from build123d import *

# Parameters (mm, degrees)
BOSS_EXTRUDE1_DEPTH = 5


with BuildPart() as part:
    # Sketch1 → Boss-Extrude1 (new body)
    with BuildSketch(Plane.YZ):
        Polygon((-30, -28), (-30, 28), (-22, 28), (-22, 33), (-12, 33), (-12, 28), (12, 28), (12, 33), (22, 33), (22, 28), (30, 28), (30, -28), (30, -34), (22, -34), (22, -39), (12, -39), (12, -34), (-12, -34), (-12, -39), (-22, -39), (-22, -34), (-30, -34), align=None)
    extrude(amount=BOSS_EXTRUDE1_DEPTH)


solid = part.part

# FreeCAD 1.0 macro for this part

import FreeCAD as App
import Part
import Sketcher

V = App.Vector
Q = App.Units.Quantity


def add_polygon(sketch, points):
    """Adds a closed chain of lines whose ends are joined by coincident constraints."""
    first, n = sketch.GeometryCount, len(points)
    for a, b in zip(points, points[1:] + points[:1]):
        sketch.addGeometry(Part.LineSegment(App.Vector(*a, 0), App.Vector(*b, 0)), False)
    for i in range(n):
        sketch.addConstraint(Sketcher.Constraint("Coincident", first + i, 2, first + (i + 1) % n, 1))

doc = App.newDocument("Part")
params = doc.addObject("Spreadsheet::Sheet", "Params")
for row, (alias, value) in enumerate([
    ("sketch1_width", "8 mm"),
    ("sketch1_width2", "10 mm"),
    ("sketch1_width3", "24 mm"),
    ("sketch1_height", "62 mm"),
    ("sketch1_height2", "5 mm"),
    ("pad1_length", "5 mm"),
], start=1):
    params.set(f"A{row}", alias)
    params.set(f"B{row}", "=" + value)
    params.setAlias(f"B{row}", alias)

body = doc.addObject("PartDesign::Body", "Body")

# Sketch on YZ plane
sketch1 = doc.addObject("Sketcher::SketchObject", "Sketch")
body.addObject(sketch1)
sketch1.AttachmentSupport = (doc.YZ_Plane, [""])
sketch1.MapMode = "FlatFace"
add_polygon(sketch1, [(-30, 28), (-30, -34), (-22, -34), (-22, -39), (-12, -39), (-12, -34), (12, -34), (12, -39), (22, -39), (22, -34), (30, -34), (30, 28), (22, 28), (22, 33), (12, 33), (12, 28), (-12, 28), (-12, 33), (-22, 33), (-22, 28)])  # lines 0-19
sketch1.addConstraint([
    Sketcher.Constraint("Vertical", 0),
    Sketcher.Constraint("Horizontal", 1),
    Sketcher.Constraint("Vertical", 2),
    Sketcher.Constraint("Horizontal", 3),
    Sketcher.Constraint("Vertical", 4),
    Sketcher.Constraint("Horizontal", 5),
    Sketcher.Constraint("Vertical", 6),
    Sketcher.Constraint("Horizontal", 7),
    Sketcher.Constraint("Vertical", 8),
    Sketcher.Constraint("Horizontal", 9),
    Sketcher.Constraint("Vertical", 10),
    Sketcher.Constraint("Horizontal", 11),
    Sketcher.Constraint("Vertical", 12),
    Sketcher.Constraint("Horizontal", 13),
    Sketcher.Constraint("Vertical", 14),
    Sketcher.Constraint("Horizontal", 15),
    Sketcher.Constraint("Vertical", 16),
    Sketcher.Constraint("Horizontal", 17),
    Sketcher.Constraint("Vertical", 18),
    Sketcher.Constraint("Horizontal", 19),
    Sketcher.Constraint("Symmetric", 3, 2, 6, 2, -2),
    Sketcher.Constraint("Symmetric", 1, 2, 8, 2, -2),
    Sketcher.Constraint("Symmetric", 13, 2, 16, 2, -2),
    Sketcher.Constraint("Symmetric", 11, 2, 18, 2, -2),
    Sketcher.Constraint("Horizontal", 1, 2, 4, 2),
    Sketcher.Constraint("Horizontal", 11, 2, 14, 2),
    Sketcher.Constraint("Vertical", 8, 2, 11, 2),
    Sketcher.Constraint("Vertical", 6, 2, 13, 2),
    Sketcher.Constraint("Equal", 1, 9),
    Sketcher.Constraint("Equal", 8, 12),
    Sketcher.Constraint("DistanceX", 1, 1, 1, 2, Q("8 mm")),
    Sketcher.Constraint("DistanceX", 3, 1, 3, 2, Q("10 mm")),
    Sketcher.Constraint("DistanceX", 5, 1, 5, 2, Q("24 mm")),
    Sketcher.Constraint("DistanceY", 0, 2, 0, 1, Q("62 mm")),
    Sketcher.Constraint("DistanceY", 2, 2, 2, 1, Q("5 mm")),
    Sketcher.Constraint("DistanceY", 0, 2, -1, 1, Q("34 mm")),
])
sketch1.setExpression("Constraints[50]", "Params.sketch1_width")
sketch1.setExpression("Constraints[51]", "Params.sketch1_width2")
sketch1.setExpression("Constraints[52]", "Params.sketch1_width3")
sketch1.setExpression("Constraints[53]", "Params.sketch1_height")
sketch1.setExpression("Constraints[54]", "Params.sketch1_height2")
pad1 = doc.addObject("PartDesign::Pad", "Pad")
body.addObject(pad1)
pad1.Profile = sketch1
pad1.setExpression("Length", "Params.pad1_length")

doc.recompute()
